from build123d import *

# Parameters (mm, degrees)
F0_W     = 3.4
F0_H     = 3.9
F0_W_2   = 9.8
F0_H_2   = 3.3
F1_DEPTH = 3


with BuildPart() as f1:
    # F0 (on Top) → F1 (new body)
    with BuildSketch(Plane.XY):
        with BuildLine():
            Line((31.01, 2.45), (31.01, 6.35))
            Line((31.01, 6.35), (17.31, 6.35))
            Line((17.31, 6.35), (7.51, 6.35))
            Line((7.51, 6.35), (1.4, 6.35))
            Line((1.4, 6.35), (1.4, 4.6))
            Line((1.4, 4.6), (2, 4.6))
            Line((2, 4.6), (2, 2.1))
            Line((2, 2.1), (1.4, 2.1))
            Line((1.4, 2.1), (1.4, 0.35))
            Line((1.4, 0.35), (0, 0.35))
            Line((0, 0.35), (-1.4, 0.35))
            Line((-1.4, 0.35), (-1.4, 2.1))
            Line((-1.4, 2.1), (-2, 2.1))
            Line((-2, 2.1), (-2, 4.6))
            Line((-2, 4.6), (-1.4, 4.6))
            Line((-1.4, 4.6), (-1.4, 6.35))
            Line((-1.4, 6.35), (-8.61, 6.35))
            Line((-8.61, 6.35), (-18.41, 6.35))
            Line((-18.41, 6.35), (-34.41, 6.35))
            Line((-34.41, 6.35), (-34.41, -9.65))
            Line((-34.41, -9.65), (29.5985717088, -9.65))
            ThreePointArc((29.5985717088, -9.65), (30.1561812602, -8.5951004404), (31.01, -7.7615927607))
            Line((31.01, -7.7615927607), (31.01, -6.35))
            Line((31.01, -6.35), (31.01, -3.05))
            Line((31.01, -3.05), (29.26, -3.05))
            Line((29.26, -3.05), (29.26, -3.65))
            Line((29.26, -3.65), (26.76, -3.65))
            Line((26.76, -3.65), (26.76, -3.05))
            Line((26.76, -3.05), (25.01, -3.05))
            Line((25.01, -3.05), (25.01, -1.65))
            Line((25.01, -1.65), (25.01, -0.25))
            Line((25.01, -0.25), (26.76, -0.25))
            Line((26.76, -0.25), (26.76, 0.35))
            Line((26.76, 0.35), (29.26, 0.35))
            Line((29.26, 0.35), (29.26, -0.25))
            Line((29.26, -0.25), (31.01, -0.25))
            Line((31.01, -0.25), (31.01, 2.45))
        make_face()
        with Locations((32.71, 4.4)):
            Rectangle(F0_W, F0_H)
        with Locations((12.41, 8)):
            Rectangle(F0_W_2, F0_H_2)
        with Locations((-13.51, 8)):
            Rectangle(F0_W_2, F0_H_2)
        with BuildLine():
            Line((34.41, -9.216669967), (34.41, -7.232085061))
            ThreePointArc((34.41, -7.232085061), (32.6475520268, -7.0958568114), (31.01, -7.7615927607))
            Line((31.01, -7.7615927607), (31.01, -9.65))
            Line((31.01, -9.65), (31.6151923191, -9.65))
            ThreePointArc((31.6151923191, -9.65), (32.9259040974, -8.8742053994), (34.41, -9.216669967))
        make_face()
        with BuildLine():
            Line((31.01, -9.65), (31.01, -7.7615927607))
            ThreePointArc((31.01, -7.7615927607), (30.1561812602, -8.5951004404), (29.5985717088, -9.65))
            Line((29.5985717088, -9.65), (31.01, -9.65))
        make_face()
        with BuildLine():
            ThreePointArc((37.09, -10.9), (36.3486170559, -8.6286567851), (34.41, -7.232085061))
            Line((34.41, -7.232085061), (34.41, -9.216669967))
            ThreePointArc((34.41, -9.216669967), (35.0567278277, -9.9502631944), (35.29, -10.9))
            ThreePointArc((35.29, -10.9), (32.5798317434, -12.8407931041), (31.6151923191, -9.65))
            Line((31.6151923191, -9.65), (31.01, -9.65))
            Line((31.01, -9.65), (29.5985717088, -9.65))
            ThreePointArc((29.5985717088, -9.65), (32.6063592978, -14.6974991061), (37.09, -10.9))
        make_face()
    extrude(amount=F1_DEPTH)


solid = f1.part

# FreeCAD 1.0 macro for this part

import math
import FreeCAD as App
import Part
import Sketcher

V = App.Vector

doc = App.newDocument("Part")
body = doc.addObject("PartDesign::Body", "Body")

# Sketch on XY plane
sketch1 = body.newObject("Sketcher::SketchObject", "Sketch")
sketch1.AttachmentSupport = (doc.getObject("XY_Plane"), [""])
sketch1.MapMode = "FlatFace"
sketch1.addGeometry([
    Part.LineSegment(V(1.4, 6.35, 0), V(1.4, 4.6, 0)),  # 0
    Part.LineSegment(V(1.4, 4.6, 0), V(2, 4.6, 0)),  # 1
    Part.LineSegment(V(2, 4.6, 0), V(2, 2.1, 0)),  # 2
    Part.LineSegment(V(2, 2.1, 0), V(1.4, 2.1, 0)),  # 3
    Part.LineSegment(V(1.4, 2.1, 0), V(1.4, 0.35, 0)),  # 4
    Part.LineSegment(V(1.4, 0.35, 0), V(-1.4, 0.35, 0)),  # 5
    Part.LineSegment(V(-1.4, 0.35, 0), V(-1.4, 2.1, 0)),  # 6
    Part.LineSegment(V(-1.4, 2.1, 0), V(-2, 2.1, 0)),  # 7
    Part.LineSegment(V(-2, 2.1, 0), V(-2, 4.6, 0)),  # 8
    Part.LineSegment(V(-2, 4.6, 0), V(-1.4, 4.6, 0)),  # 9
    Part.LineSegment(V(-1.4, 4.6, 0), V(-1.4, 6.35, 0)),  # 10
    Part.LineSegment(V(-1.4, 6.35, 0), V(-8.61, 6.35, 0)),  # 11
    Part.LineSegment(V(-8.61, 6.35, 0), V(-8.61, 9.65, 0)),  # 12
    Part.LineSegment(V(-8.61, 9.65, 0), V(-18.41, 9.65, 0)),  # 13
    Part.LineSegment(V(-18.41, 9.65, 0), V(-18.41, 6.35, 0)),  # 14
    Part.LineSegment(V(-18.41, 6.35, 0), V(-34.41, 6.35, 0)),  # 15
    Part.LineSegment(V(-34.41, 6.35, 0), V(-34.41, -9.65, 0)),  # 16
    Part.LineSegment(V(-34.41, -9.65, 0), V(29.598572, -9.65, 0)),  # 17
    Part.ArcOfCircle(Part.Circle(V(33.24, -10.9, 0), V(0, 0, 1), 3.85), math.radians(161.054094), math.radians(360)),  # 18
    Part.ArcOfCircle(Part.Circle(V(33.24, -10.9, 0), V(0, 0, 1), 3.85), math.radians(0), math.radians(72.308237)),  # 19
    Part.ArcOfCircle(Part.Circle(V(33.24, -10.9, 0), V(0, 0, 1), 3.85), math.radians(72.308237), math.radians(125.395755)),  # 20
    Part.LineSegment(V(31.01, -7.761593, 0), V(31.01, -3.05, 0)),  # 21
    Part.LineSegment(V(31.01, -3.05, 0), V(29.26, -3.05, 0)),  # 22
    Part.LineSegment(V(29.26, -3.05, 0), V(29.26, -3.65, 0)),  # 23
    Part.LineSegment(V(29.26, -3.65, 0), V(26.76, -3.65, 0)),  # 24
    Part.LineSegment(V(26.76, -3.65, 0), V(26.76, -3.05, 0)),  # 25
    Part.LineSegment(V(26.76, -3.05, 0), V(25.01, -3.05, 0)),  # 26
    Part.LineSegment(V(25.01, -3.05, 0), V(25.01, -0.25, 0)),  # 27
    Part.LineSegment(V(25.01, -0.25, 0), V(26.76, -0.25, 0)),  # 28
    Part.LineSegment(V(26.76, -0.25, 0), V(26.76, 0.35, 0)),  # 29
    Part.LineSegment(V(26.76, 0.35, 0), V(29.26, 0.35, 0)),  # 30
    Part.LineSegment(V(29.26, 0.35, 0), V(29.26, -0.25, 0)),  # 31
    Part.LineSegment(V(29.26, -0.25, 0), V(31.01, -0.25, 0)),  # 32
    Part.LineSegment(V(31.01, -0.25, 0), V(31.01, 2.45, 0)),  # 33
    Part.LineSegment(V(31.01, 2.45, 0), V(34.41, 2.45, 0)),  # 34
    Part.LineSegment(V(34.41, 2.45, 0), V(34.41, 6.35, 0)),  # 35
    Part.LineSegment(V(34.41, 6.35, 0), V(17.31, 6.35, 0)),  # 36
    Part.LineSegment(V(17.31, 6.35, 0), V(17.31, 9.65, 0)),  # 37
    Part.LineSegment(V(17.31, 9.65, 0), V(7.51, 9.65, 0)),  # 38
    Part.LineSegment(V(7.51, 9.65, 0), V(7.51, 6.35, 0)),  # 39
    Part.LineSegment(V(7.51, 6.35, 0), V(1.4, 6.35, 0)),  # 40
    Part.ArcOfCircle(Part.Circle(V(33.24, -10.9, 0), V(0, 0, 1), 2.05), math.radians(55.198734), math.radians(142.428131)),  # 41
    Part.ArcOfCircle(Part.Circle(V(33.24, -10.9, 0), V(0, 0, 1), 2.05), math.radians(0), math.radians(55.198734)),  # 42
    Part.ArcOfCircle(Part.Circle(V(33.24, -10.9, 0), V(0, 0, 1), 2.05), math.radians(142.428131), math.radians(360)),  # 43
], False)
sketch1.addConstraint([
    Sketcher.Constraint("Coincident", 0, 2, 1, 1),
    Sketcher.Constraint("Coincident", 1, 2, 2, 1),
    Sketcher.Constraint("Coincident", 2, 2, 3, 1),
    Sketcher.Constraint("Coincident", 3, 2, 4, 1),
    Sketcher.Constraint("Coincident", 4, 2, 5, 1),
    Sketcher.Constraint("Coincident", 5, 2, 6, 1),
    Sketcher.Constraint("Coincident", 6, 2, 7, 1),
    Sketcher.Constraint("Coincident", 7, 2, 8, 1),
    Sketcher.Constraint("Coincident", 8, 2, 9, 1),
    Sketcher.Constraint("Coincident", 9, 2, 10, 1),
    Sketcher.Constraint("Coincident", 10, 2, 11, 1),
    Sketcher.Constraint("Coincident", 11, 2, 12, 1),
    Sketcher.Constraint("Coincident", 12, 2, 13, 1),
    Sketcher.Constraint("Coincident", 13, 2, 14, 1),
    Sketcher.Constraint("Coincident", 14, 2, 15, 1),
    Sketcher.Constraint("Coincident", 15, 2, 16, 1),
    Sketcher.Constraint("Coincident", 16, 2, 17, 1),
    Sketcher.Constraint("Coincident", 17, 2, 18, 1),
    Sketcher.Constraint("Tangent", 18, 2, 19, 1),
    Sketcher.Constraint("Tangent", 19, 2, 20, 1),
    Sketcher.Constraint("Coincident", 20, 2, 21, 1),
    Sketcher.Constraint("Coincident", 21, 2, 22, 1),
    Sketcher.Constraint("Coincident", 22, 2, 23, 1),
    Sketcher.Constraint("Coincident", 23, 2, 24, 1),
    Sketcher.Constraint("Coincident", 24, 2, 25, 1),
    Sketcher.Constraint("Coincident", 25, 2, 26, 1),
    Sketcher.Constraint("Coincident", 26, 2, 27, 1),
    Sketcher.Constraint("Coincident", 27, 2, 28, 1),
    Sketcher.Constraint("Coincident", 28, 2, 29, 1),
    Sketcher.Constraint("Coincident", 29, 2, 30, 1),
    Sketcher.Constraint("Coincident", 30, 2, 31, 1),
    Sketcher.Constraint("Coincident", 31, 2, 32, 1),
    Sketcher.Constraint("Coincident", 32, 2, 33, 1),
    Sketcher.Constraint("Coincident", 33, 2, 34, 1),
    Sketcher.Constraint("Coincident", 34, 2, 35, 1),
    Sketcher.Constraint("Coincident", 35, 2, 36, 1),
    Sketcher.Constraint("Coincident", 36, 2, 37, 1),
    Sketcher.Constraint("Coincident", 37, 2, 38, 1),
    Sketcher.Constraint("Coincident", 38, 2, 39, 1),
    Sketcher.Constraint("Coincident", 39, 2, 40, 1),
    Sketcher.Constraint("Coincident", 40, 2, 0, 1),
    Sketcher.Constraint("Tangent", 41, 1, 42, 2),
    Sketcher.Constraint("Tangent", 42, 1, 43, 2),
    Sketcher.Constraint("Tangent", 43, 1, 41, 2),
    Sketcher.Constraint("Vertical", 0),
    Sketcher.Constraint("Horizontal", 1),
    Sketcher.Constraint("Vertical", 2),
    Sketcher.Constraint("Horizontal", 3),
    Sketcher.Constraint("Vertical", 4),
    Sketcher.Constraint("Horizontal", 5),
    Sketcher.Constraint("Vertical", 6),
    Sketcher.Constraint("Horizontal", 7),
    Sketcher.Constraint("Vertical", 8),
    Sketcher.Constraint("Horizontal", 9),
    Sketcher.Constraint("Vertical", 10),
    Sketcher.Constraint("Horizontal", 11),
    Sketcher.Constraint("Vertical", 12),
    Sketcher.Constraint("Horizontal", 13),
    Sketcher.Constraint("Vertical", 14),
    Sketcher.Constraint("Horizontal", 15),
    Sketcher.Constraint("Vertical", 16),
    Sketcher.Constraint("Horizontal", 17),
    Sketcher.Constraint("Vertical", 21),
    Sketcher.Constraint("Horizontal", 22),
    Sketcher.Constraint("Vertical", 23),
    Sketcher.Constraint("Horizontal", 24),
    Sketcher.Constraint("Vertical", 25),
    Sketcher.Constraint("Horizontal", 26),
    Sketcher.Constraint("Vertical", 27),
    Sketcher.Constraint("Horizontal", 28),
    Sketcher.Constraint("Vertical", 29),
    Sketcher.Constraint("Horizontal", 30),
    Sketcher.Constraint("Vertical", 31),
    Sketcher.Constraint("Horizontal", 32),
    Sketcher.Constraint("Vertical", 33),
    Sketcher.Constraint("Horizontal", 34),
    Sketcher.Constraint("Vertical", 35),
    Sketcher.Constraint("Horizontal", 36),
    Sketcher.Constraint("Vertical", 37),
    Sketcher.Constraint("Horizontal", 38),
    Sketcher.Constraint("Vertical", 39),
    Sketcher.Constraint("Horizontal", 40),
    Sketcher.Constraint("Coincident", 20, 3, 18, 3),
    Sketcher.Constraint("Coincident", 41, 3, 18, 3),
    Sketcher.Constraint("Symmetric", 3, 2, 6, 2, -2),
    Sketcher.Constraint("Symmetric", 1, 2, 8, 2, -2),
    Sketcher.Constraint("Symmetric", 15, 2, 35, 2, -2),
    Sketcher.Constraint("Symmetric", 10, 2, 40, 2, -2),
    Sketcher.Constraint("Horizontal", 11, 2, 14, 2),
    Sketcher.Constraint("Horizontal", 43, 3, 18, 2),
    Sketcher.Constraint("Horizontal", 22, 2, 25, 2),
    Sketcher.Constraint("Horizontal", 5, 2, 29, 2),
    Sketcher.Constraint("Horizontal", 28, 2, 31, 2),
    Sketcher.Constraint("Horizontal", 13, 2, 37, 2),
    Sketcher.Constraint("Horizontal", 18, 2, 42, 1),
    Sketcher.Constraint("Horizontal", 17, 2, 43, 1),
    Sketcher.Constraint("Vertical", 0, 2, 3, 2),
    Sketcher.Constraint("Vertical", 25, 2, 28, 2),
    Sketcher.Constraint("Vertical", 23, 2, 30, 2),
    Sketcher.Constraint("Vertical", 21, 2, 32, 2),
    Sketcher.Constraint("Vertical", 19, 2, 34, 2),
    Sketcher.Constraint("Vertical", 35, 2, 41, 1),
    Sketcher.Constraint("Equal", 22, 26),
    Sketcher.Constraint("Equal", 13, 38),
    Sketcher.Constraint("Equal", 32, 0),
    Sketcher.Constraint("Equal", 30, 2),
    Sketcher.Constraint("Equal", 0, 4),
    Sketcher.Constraint("Equal", 15, 16),
    Sketcher.Constraint("Equal", 9, 23),
    Sketcher.Constraint("Equal", 5, 27),
    Sketcher.Constraint("Equal", 25, 29),
    Sketcher.Constraint("DistanceX", 15, 2, 15, 1, 16.0),
    Sketcher.Constraint("Radius", 18, 3.85),
    Sketcher.Constraint("Radius", 41, 2.05),
    Sketcher.Constraint("DistanceX", 1, 1, 1, 2, 0.6),
    Sketcher.Constraint("DistanceX", 5, 2, 5, 1, 2.8),
    Sketcher.Constraint("DistanceX", 13, 2, 13, 1, 9.8),
    Sketcher.Constraint("DistanceX", 24, 2, 24, 1, 2.5),
    Sketcher.Constraint("DistanceX", 34, 1, 34, 2, 3.4),
    Sketcher.Constraint("DistanceX", 36, 2, 36, 1, 17.1),
    Sketcher.Constraint("DistanceY", 12, 1, 12, 2, 3.3),
    Sketcher.Constraint("DistanceY", 33, 1, 33, 2, 2.7),
    Sketcher.Constraint("DistanceY", 35, 1, 35, 2, 3.9),
    Sketcher.Constraint("DistanceY", 20, 3, 2, 2, 13.0),
    Sketcher.Constraint("DistanceX", 11, 2, 11, 1, 7.21),
    Sketcher.Constraint("DistanceY", 18, 3, -1, 1, 10.9),
    Sketcher.Constraint("DistanceX", -1, 1, 18, 3, 33.24),
])
pad1 = body.newObject("PartDesign::Pad", "Pad")
pad1.Profile = sketch1
pad1.Length = 3

doc.recompute()
